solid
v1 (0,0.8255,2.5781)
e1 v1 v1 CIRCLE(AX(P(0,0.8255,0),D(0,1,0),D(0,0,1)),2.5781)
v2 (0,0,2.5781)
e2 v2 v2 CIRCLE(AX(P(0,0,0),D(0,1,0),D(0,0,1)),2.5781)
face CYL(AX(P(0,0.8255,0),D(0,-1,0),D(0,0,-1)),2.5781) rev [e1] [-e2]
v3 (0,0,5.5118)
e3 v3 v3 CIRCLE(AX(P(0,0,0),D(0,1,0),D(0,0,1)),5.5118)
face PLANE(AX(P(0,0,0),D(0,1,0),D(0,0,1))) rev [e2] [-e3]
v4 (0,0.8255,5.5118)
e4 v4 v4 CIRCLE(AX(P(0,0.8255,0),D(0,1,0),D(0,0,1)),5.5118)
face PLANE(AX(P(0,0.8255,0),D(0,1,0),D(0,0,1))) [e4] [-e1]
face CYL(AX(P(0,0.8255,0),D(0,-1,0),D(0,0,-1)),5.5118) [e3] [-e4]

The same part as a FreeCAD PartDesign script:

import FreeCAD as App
import Part
import Sketcher
from FreeCAD import Vector
Q = App.Units.Quantity

doc = App.newDocument("Part")
params = doc.addObject("Spreadsheet::Sheet", "Params")
for row, (alias, value) in enumerate([
    ("sketch1_diameter", "0.434 in"),
    ("sketch1_diameter2", "0.203 in"),
    ("pad1_length", "0.0325 in"),
], start=1):
    params.set(f"A{row}", alias)
    params.set(f"B{row}", "=" + value)
    params.setAlias(f"B{row}", alias)

body = doc.addObject("PartDesign::Body", "Body")

# Sketch on XZ plane
sketch1 = body.newObject("Sketcher::SketchObject", "Sketch")
sketch1.AttachmentSupport = (doc.getObject("XZ_Plane"), [""])
sketch1.MapMode = "FlatFace"
sketch1.addGeometry([
    Part.Circle(Vector(0, 0, 0), Vector(0, 0, 1), 5.5),
    Part.Circle(Vector(0, 0, 0), Vector(0, 0, 1), 2.6),
], False)
sketch1.addConstraint([
    Sketcher.Constraint("Coincident", 0, 3, -1, 1),
    Sketcher.Constraint("Coincident", 1, 3, -1, 1),
    Sketcher.Constraint("Diameter", 0, Q("0.434 in")),
    Sketcher.Constraint("Diameter", 1, Q("0.203 in")),
])
sketch1.setExpression("Constraints[2]", "Params.sketch1_diameter")
sketch1.setExpression("Constraints[3]", "Params.sketch1_diameter2")
pad1 = body.newObject("PartDesign::Pad", "Pad")
pad1.Profile = sketch1
pad1.setExpression("Length", "Params.pad1_length")
pad1.Reversed = True

doc.recompute()
